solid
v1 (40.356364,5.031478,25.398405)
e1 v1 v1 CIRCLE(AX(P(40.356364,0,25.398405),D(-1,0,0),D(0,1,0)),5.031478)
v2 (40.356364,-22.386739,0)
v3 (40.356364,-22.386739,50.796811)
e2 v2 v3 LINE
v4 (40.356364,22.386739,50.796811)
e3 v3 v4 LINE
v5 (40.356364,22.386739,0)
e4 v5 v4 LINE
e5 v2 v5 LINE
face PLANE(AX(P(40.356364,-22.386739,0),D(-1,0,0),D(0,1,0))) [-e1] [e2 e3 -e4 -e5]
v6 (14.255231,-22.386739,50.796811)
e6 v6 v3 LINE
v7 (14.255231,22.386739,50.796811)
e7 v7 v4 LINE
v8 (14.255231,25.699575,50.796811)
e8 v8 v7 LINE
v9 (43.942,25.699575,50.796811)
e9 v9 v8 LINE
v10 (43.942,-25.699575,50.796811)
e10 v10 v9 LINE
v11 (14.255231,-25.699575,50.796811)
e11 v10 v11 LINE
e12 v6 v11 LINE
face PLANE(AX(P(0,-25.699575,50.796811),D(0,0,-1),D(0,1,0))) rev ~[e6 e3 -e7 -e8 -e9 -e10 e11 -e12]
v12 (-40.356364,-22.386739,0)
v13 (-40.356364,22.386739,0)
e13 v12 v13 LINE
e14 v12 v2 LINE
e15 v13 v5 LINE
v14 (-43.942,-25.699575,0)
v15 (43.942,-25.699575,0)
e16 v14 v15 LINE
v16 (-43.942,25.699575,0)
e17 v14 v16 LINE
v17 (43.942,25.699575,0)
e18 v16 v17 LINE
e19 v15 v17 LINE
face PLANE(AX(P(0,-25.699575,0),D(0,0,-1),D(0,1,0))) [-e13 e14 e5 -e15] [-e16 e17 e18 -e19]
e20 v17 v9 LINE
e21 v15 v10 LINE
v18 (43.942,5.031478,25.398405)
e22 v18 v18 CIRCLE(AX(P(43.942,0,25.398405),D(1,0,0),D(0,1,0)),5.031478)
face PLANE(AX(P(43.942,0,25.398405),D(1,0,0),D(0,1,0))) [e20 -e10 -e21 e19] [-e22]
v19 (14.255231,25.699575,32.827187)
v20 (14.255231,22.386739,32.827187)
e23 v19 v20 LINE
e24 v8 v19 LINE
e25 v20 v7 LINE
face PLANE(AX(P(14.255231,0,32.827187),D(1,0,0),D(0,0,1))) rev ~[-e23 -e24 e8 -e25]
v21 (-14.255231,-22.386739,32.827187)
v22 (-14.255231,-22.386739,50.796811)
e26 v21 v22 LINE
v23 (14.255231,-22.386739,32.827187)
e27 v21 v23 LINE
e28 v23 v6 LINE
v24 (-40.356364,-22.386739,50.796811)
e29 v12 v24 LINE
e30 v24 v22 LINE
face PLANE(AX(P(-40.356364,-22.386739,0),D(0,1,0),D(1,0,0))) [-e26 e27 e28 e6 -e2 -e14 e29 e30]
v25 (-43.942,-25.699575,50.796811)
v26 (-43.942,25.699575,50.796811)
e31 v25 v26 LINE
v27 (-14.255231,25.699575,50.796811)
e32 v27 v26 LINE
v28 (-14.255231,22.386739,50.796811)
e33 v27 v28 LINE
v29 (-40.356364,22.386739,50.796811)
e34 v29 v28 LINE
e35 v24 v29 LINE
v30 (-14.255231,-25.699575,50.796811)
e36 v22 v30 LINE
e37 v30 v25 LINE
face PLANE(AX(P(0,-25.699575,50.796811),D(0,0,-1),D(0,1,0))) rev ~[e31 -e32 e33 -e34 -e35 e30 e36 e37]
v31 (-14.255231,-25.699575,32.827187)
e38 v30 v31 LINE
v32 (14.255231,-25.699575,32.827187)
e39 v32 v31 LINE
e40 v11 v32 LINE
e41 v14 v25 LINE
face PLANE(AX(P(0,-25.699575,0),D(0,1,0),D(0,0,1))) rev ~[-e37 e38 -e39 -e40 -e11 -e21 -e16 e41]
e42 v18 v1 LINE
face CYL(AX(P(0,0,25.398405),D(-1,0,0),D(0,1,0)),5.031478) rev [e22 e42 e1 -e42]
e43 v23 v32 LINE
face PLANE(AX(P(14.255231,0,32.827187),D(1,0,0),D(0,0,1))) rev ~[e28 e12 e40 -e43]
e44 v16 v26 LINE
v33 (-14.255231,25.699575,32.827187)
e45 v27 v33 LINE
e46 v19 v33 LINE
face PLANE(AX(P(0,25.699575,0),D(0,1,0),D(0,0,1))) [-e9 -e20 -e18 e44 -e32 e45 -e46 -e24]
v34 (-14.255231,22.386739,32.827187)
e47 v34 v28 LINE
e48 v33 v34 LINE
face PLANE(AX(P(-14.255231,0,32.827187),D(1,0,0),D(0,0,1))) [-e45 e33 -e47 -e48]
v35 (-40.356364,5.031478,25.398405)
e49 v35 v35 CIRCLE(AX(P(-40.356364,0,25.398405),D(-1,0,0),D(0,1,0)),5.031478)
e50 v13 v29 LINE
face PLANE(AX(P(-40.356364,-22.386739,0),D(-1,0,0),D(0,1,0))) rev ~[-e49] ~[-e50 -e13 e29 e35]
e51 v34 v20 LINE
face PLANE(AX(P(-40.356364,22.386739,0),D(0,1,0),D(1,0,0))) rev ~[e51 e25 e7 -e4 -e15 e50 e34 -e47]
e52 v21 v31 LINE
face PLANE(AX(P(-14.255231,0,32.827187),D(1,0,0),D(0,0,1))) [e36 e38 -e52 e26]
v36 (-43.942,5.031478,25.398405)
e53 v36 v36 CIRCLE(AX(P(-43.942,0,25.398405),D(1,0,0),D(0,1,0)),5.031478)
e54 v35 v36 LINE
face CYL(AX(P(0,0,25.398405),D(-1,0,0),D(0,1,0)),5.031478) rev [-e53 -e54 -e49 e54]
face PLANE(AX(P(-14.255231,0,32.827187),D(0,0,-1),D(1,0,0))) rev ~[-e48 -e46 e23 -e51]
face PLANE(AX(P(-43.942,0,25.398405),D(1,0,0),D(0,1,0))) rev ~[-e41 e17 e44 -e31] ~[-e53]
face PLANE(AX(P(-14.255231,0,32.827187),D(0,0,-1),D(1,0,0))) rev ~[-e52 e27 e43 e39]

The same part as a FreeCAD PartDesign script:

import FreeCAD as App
import Part
import Sketcher

V = App.Vector


def add_polygon(sketch, points):
    """Adds a closed chain of lines whose ends are joined by coincident constraints."""
    first, n = sketch.GeometryCount, len(points)
    for a, b in zip(points, points[1:] + points[:1]):
        sketch.addGeometry(Part.LineSegment(App.Vector(*a, 0), App.Vector(*b, 0)), False)
    for i in range(n):
        sketch.addConstraint(Sketcher.Constraint("Coincident", first + i, 2, first + (i + 1) % n, 1))

doc = App.newDocument("Part")
params = doc.addObject("Spreadsheet::Sheet", "Params")
for row, (alias, value) in enumerate([
    ("pad1_length", "3.46 in"),
    ("pocket1_length", "2.04 in"),
    ("pocket2_length", "3.34 in"),
], start=1):
    params.set(f"A{row}", alias)
    params.set(f"B{row}", "=" + value)
    params.setAlias(f"B{row}", alias)

body = doc.addObject("PartDesign::Body", "Body")

# Sketch on YZ plane
sketch1 = body.newObject("Sketcher::SketchObject", "Sketch")
sketch1.AttachmentSupport = (doc.getObject("YZ_Plane"), [""])
sketch1.MapMode = "FlatFace"
add_polygon(sketch1, [(-25.699575, 50.796811), (-25.699575, 0), (25.699575, 0), (25.699575, 50.796811)])  # lines 0-3
sketch1.addGeometry(Part.Circle(V(0, 25.398405, 0), V(0, 0, 1), 5.031478), False)  # 4
sketch1.addConstraint([
    Sketcher.Constraint("Vertical", 0),
    Sketcher.Constraint("Horizontal", 1),
    Sketcher.Constraint("Vertical", 2),
    Sketcher.Constraint("Horizontal", 3),
    Sketcher.Constraint("Symmetric", 0, 2, 1, 2, -1, 1),
    Sketcher.Constraint("PointOnObject", 4, 3, -2),
    Sketcher.Constraint("Diameter", 4, 10.062957),
    Sketcher.Constraint("DistanceX", 1, 1, 1, 2, 51.399149),
    Sketcher.Constraint("DistanceY", 0, 2, 0, 1, 50.796811),
    Sketcher.Constraint("DistanceY", -1, 1, 4, 3, 25.398405),
])
pad1 = body.newObject("PartDesign::Pad", "Pad")
pad1.Profile = sketch1
pad1.setExpression("Length", "Params.pad1_length")
pad1.Midplane = True

# Sketch on XZ plane
sketch2 = body.newObject("Sketcher::SketchObject", "Sketch001")
sketch2.AttachmentSupport = (doc.getObject("XZ_Plane"), [""])
sketch2.MapMode = "FlatFace"
add_polygon(sketch2, [(-14.255231, 50.8972), (-14.255231, 32.827187), (14.255231, 32.827187), (14.255231, 50.8972)])  # lines 0-3
sketch2.addConstraint([
    Sketcher.Constraint("Vertical", 0),
    Sketcher.Constraint("Horizontal", 1),
    Sketcher.Constraint("Vertical", 2),
    Sketcher.Constraint("Horizontal", 3),
    Sketcher.Constraint("DistanceY", -1, 1, 2, 2, 50.8972),
    Sketcher.Constraint("DistanceX", 1, 1, 1, 2, 28.510462),
    Sketcher.Constraint("DistanceY", 0, 2, 0, 1, 18.070012),
    Sketcher.Constraint("DistanceX", 0, 2, -1, 1, 14.255231),
])
pocket1 = body.newObject("PartDesign::Pocket", "Pocket")
pocket1.Profile = sketch2
pocket1.setExpression("Length", "Params.pocket1_length")
pocket1.Midplane = True

# Sketch on XY plane
sketch3 = body.newObject("Sketcher::SketchObject", "Sketch002")
sketch3.AttachmentSupport = (doc.getObject("XY_Plane"), [""])
sketch3.MapMode = "FlatFace"
add_polygon(sketch3, [(-40.356364, 22.386739), (-40.356364, -22.386739), (40.356364, -22.386739), (40.356364, 22.386739)])  # lines 0-3
sketch3.addConstraint([
    Sketcher.Constraint("Vertical", 0),
    Sketcher.Constraint("Horizontal", 1),
    Sketcher.Constraint("Vertical", 2),
    Sketcher.Constraint("Horizontal", 3),
    Sketcher.Constraint("Symmetric", 0, 2, 2, 2, -1, 1),
    Sketcher.Constraint("DistanceX", 1, 1, 1, 2, 80.712728),
    Sketcher.Constraint("DistanceY", 0, 2, 0, 1, 44.773478),
])
pocket2 = body.newObject("PartDesign::Pocket", "Pocket001")
pocket2.Profile = sketch3
pocket2.setExpression("Length", "Params.pocket2_length")
pocket2.Reversed = True

doc.recompute()
